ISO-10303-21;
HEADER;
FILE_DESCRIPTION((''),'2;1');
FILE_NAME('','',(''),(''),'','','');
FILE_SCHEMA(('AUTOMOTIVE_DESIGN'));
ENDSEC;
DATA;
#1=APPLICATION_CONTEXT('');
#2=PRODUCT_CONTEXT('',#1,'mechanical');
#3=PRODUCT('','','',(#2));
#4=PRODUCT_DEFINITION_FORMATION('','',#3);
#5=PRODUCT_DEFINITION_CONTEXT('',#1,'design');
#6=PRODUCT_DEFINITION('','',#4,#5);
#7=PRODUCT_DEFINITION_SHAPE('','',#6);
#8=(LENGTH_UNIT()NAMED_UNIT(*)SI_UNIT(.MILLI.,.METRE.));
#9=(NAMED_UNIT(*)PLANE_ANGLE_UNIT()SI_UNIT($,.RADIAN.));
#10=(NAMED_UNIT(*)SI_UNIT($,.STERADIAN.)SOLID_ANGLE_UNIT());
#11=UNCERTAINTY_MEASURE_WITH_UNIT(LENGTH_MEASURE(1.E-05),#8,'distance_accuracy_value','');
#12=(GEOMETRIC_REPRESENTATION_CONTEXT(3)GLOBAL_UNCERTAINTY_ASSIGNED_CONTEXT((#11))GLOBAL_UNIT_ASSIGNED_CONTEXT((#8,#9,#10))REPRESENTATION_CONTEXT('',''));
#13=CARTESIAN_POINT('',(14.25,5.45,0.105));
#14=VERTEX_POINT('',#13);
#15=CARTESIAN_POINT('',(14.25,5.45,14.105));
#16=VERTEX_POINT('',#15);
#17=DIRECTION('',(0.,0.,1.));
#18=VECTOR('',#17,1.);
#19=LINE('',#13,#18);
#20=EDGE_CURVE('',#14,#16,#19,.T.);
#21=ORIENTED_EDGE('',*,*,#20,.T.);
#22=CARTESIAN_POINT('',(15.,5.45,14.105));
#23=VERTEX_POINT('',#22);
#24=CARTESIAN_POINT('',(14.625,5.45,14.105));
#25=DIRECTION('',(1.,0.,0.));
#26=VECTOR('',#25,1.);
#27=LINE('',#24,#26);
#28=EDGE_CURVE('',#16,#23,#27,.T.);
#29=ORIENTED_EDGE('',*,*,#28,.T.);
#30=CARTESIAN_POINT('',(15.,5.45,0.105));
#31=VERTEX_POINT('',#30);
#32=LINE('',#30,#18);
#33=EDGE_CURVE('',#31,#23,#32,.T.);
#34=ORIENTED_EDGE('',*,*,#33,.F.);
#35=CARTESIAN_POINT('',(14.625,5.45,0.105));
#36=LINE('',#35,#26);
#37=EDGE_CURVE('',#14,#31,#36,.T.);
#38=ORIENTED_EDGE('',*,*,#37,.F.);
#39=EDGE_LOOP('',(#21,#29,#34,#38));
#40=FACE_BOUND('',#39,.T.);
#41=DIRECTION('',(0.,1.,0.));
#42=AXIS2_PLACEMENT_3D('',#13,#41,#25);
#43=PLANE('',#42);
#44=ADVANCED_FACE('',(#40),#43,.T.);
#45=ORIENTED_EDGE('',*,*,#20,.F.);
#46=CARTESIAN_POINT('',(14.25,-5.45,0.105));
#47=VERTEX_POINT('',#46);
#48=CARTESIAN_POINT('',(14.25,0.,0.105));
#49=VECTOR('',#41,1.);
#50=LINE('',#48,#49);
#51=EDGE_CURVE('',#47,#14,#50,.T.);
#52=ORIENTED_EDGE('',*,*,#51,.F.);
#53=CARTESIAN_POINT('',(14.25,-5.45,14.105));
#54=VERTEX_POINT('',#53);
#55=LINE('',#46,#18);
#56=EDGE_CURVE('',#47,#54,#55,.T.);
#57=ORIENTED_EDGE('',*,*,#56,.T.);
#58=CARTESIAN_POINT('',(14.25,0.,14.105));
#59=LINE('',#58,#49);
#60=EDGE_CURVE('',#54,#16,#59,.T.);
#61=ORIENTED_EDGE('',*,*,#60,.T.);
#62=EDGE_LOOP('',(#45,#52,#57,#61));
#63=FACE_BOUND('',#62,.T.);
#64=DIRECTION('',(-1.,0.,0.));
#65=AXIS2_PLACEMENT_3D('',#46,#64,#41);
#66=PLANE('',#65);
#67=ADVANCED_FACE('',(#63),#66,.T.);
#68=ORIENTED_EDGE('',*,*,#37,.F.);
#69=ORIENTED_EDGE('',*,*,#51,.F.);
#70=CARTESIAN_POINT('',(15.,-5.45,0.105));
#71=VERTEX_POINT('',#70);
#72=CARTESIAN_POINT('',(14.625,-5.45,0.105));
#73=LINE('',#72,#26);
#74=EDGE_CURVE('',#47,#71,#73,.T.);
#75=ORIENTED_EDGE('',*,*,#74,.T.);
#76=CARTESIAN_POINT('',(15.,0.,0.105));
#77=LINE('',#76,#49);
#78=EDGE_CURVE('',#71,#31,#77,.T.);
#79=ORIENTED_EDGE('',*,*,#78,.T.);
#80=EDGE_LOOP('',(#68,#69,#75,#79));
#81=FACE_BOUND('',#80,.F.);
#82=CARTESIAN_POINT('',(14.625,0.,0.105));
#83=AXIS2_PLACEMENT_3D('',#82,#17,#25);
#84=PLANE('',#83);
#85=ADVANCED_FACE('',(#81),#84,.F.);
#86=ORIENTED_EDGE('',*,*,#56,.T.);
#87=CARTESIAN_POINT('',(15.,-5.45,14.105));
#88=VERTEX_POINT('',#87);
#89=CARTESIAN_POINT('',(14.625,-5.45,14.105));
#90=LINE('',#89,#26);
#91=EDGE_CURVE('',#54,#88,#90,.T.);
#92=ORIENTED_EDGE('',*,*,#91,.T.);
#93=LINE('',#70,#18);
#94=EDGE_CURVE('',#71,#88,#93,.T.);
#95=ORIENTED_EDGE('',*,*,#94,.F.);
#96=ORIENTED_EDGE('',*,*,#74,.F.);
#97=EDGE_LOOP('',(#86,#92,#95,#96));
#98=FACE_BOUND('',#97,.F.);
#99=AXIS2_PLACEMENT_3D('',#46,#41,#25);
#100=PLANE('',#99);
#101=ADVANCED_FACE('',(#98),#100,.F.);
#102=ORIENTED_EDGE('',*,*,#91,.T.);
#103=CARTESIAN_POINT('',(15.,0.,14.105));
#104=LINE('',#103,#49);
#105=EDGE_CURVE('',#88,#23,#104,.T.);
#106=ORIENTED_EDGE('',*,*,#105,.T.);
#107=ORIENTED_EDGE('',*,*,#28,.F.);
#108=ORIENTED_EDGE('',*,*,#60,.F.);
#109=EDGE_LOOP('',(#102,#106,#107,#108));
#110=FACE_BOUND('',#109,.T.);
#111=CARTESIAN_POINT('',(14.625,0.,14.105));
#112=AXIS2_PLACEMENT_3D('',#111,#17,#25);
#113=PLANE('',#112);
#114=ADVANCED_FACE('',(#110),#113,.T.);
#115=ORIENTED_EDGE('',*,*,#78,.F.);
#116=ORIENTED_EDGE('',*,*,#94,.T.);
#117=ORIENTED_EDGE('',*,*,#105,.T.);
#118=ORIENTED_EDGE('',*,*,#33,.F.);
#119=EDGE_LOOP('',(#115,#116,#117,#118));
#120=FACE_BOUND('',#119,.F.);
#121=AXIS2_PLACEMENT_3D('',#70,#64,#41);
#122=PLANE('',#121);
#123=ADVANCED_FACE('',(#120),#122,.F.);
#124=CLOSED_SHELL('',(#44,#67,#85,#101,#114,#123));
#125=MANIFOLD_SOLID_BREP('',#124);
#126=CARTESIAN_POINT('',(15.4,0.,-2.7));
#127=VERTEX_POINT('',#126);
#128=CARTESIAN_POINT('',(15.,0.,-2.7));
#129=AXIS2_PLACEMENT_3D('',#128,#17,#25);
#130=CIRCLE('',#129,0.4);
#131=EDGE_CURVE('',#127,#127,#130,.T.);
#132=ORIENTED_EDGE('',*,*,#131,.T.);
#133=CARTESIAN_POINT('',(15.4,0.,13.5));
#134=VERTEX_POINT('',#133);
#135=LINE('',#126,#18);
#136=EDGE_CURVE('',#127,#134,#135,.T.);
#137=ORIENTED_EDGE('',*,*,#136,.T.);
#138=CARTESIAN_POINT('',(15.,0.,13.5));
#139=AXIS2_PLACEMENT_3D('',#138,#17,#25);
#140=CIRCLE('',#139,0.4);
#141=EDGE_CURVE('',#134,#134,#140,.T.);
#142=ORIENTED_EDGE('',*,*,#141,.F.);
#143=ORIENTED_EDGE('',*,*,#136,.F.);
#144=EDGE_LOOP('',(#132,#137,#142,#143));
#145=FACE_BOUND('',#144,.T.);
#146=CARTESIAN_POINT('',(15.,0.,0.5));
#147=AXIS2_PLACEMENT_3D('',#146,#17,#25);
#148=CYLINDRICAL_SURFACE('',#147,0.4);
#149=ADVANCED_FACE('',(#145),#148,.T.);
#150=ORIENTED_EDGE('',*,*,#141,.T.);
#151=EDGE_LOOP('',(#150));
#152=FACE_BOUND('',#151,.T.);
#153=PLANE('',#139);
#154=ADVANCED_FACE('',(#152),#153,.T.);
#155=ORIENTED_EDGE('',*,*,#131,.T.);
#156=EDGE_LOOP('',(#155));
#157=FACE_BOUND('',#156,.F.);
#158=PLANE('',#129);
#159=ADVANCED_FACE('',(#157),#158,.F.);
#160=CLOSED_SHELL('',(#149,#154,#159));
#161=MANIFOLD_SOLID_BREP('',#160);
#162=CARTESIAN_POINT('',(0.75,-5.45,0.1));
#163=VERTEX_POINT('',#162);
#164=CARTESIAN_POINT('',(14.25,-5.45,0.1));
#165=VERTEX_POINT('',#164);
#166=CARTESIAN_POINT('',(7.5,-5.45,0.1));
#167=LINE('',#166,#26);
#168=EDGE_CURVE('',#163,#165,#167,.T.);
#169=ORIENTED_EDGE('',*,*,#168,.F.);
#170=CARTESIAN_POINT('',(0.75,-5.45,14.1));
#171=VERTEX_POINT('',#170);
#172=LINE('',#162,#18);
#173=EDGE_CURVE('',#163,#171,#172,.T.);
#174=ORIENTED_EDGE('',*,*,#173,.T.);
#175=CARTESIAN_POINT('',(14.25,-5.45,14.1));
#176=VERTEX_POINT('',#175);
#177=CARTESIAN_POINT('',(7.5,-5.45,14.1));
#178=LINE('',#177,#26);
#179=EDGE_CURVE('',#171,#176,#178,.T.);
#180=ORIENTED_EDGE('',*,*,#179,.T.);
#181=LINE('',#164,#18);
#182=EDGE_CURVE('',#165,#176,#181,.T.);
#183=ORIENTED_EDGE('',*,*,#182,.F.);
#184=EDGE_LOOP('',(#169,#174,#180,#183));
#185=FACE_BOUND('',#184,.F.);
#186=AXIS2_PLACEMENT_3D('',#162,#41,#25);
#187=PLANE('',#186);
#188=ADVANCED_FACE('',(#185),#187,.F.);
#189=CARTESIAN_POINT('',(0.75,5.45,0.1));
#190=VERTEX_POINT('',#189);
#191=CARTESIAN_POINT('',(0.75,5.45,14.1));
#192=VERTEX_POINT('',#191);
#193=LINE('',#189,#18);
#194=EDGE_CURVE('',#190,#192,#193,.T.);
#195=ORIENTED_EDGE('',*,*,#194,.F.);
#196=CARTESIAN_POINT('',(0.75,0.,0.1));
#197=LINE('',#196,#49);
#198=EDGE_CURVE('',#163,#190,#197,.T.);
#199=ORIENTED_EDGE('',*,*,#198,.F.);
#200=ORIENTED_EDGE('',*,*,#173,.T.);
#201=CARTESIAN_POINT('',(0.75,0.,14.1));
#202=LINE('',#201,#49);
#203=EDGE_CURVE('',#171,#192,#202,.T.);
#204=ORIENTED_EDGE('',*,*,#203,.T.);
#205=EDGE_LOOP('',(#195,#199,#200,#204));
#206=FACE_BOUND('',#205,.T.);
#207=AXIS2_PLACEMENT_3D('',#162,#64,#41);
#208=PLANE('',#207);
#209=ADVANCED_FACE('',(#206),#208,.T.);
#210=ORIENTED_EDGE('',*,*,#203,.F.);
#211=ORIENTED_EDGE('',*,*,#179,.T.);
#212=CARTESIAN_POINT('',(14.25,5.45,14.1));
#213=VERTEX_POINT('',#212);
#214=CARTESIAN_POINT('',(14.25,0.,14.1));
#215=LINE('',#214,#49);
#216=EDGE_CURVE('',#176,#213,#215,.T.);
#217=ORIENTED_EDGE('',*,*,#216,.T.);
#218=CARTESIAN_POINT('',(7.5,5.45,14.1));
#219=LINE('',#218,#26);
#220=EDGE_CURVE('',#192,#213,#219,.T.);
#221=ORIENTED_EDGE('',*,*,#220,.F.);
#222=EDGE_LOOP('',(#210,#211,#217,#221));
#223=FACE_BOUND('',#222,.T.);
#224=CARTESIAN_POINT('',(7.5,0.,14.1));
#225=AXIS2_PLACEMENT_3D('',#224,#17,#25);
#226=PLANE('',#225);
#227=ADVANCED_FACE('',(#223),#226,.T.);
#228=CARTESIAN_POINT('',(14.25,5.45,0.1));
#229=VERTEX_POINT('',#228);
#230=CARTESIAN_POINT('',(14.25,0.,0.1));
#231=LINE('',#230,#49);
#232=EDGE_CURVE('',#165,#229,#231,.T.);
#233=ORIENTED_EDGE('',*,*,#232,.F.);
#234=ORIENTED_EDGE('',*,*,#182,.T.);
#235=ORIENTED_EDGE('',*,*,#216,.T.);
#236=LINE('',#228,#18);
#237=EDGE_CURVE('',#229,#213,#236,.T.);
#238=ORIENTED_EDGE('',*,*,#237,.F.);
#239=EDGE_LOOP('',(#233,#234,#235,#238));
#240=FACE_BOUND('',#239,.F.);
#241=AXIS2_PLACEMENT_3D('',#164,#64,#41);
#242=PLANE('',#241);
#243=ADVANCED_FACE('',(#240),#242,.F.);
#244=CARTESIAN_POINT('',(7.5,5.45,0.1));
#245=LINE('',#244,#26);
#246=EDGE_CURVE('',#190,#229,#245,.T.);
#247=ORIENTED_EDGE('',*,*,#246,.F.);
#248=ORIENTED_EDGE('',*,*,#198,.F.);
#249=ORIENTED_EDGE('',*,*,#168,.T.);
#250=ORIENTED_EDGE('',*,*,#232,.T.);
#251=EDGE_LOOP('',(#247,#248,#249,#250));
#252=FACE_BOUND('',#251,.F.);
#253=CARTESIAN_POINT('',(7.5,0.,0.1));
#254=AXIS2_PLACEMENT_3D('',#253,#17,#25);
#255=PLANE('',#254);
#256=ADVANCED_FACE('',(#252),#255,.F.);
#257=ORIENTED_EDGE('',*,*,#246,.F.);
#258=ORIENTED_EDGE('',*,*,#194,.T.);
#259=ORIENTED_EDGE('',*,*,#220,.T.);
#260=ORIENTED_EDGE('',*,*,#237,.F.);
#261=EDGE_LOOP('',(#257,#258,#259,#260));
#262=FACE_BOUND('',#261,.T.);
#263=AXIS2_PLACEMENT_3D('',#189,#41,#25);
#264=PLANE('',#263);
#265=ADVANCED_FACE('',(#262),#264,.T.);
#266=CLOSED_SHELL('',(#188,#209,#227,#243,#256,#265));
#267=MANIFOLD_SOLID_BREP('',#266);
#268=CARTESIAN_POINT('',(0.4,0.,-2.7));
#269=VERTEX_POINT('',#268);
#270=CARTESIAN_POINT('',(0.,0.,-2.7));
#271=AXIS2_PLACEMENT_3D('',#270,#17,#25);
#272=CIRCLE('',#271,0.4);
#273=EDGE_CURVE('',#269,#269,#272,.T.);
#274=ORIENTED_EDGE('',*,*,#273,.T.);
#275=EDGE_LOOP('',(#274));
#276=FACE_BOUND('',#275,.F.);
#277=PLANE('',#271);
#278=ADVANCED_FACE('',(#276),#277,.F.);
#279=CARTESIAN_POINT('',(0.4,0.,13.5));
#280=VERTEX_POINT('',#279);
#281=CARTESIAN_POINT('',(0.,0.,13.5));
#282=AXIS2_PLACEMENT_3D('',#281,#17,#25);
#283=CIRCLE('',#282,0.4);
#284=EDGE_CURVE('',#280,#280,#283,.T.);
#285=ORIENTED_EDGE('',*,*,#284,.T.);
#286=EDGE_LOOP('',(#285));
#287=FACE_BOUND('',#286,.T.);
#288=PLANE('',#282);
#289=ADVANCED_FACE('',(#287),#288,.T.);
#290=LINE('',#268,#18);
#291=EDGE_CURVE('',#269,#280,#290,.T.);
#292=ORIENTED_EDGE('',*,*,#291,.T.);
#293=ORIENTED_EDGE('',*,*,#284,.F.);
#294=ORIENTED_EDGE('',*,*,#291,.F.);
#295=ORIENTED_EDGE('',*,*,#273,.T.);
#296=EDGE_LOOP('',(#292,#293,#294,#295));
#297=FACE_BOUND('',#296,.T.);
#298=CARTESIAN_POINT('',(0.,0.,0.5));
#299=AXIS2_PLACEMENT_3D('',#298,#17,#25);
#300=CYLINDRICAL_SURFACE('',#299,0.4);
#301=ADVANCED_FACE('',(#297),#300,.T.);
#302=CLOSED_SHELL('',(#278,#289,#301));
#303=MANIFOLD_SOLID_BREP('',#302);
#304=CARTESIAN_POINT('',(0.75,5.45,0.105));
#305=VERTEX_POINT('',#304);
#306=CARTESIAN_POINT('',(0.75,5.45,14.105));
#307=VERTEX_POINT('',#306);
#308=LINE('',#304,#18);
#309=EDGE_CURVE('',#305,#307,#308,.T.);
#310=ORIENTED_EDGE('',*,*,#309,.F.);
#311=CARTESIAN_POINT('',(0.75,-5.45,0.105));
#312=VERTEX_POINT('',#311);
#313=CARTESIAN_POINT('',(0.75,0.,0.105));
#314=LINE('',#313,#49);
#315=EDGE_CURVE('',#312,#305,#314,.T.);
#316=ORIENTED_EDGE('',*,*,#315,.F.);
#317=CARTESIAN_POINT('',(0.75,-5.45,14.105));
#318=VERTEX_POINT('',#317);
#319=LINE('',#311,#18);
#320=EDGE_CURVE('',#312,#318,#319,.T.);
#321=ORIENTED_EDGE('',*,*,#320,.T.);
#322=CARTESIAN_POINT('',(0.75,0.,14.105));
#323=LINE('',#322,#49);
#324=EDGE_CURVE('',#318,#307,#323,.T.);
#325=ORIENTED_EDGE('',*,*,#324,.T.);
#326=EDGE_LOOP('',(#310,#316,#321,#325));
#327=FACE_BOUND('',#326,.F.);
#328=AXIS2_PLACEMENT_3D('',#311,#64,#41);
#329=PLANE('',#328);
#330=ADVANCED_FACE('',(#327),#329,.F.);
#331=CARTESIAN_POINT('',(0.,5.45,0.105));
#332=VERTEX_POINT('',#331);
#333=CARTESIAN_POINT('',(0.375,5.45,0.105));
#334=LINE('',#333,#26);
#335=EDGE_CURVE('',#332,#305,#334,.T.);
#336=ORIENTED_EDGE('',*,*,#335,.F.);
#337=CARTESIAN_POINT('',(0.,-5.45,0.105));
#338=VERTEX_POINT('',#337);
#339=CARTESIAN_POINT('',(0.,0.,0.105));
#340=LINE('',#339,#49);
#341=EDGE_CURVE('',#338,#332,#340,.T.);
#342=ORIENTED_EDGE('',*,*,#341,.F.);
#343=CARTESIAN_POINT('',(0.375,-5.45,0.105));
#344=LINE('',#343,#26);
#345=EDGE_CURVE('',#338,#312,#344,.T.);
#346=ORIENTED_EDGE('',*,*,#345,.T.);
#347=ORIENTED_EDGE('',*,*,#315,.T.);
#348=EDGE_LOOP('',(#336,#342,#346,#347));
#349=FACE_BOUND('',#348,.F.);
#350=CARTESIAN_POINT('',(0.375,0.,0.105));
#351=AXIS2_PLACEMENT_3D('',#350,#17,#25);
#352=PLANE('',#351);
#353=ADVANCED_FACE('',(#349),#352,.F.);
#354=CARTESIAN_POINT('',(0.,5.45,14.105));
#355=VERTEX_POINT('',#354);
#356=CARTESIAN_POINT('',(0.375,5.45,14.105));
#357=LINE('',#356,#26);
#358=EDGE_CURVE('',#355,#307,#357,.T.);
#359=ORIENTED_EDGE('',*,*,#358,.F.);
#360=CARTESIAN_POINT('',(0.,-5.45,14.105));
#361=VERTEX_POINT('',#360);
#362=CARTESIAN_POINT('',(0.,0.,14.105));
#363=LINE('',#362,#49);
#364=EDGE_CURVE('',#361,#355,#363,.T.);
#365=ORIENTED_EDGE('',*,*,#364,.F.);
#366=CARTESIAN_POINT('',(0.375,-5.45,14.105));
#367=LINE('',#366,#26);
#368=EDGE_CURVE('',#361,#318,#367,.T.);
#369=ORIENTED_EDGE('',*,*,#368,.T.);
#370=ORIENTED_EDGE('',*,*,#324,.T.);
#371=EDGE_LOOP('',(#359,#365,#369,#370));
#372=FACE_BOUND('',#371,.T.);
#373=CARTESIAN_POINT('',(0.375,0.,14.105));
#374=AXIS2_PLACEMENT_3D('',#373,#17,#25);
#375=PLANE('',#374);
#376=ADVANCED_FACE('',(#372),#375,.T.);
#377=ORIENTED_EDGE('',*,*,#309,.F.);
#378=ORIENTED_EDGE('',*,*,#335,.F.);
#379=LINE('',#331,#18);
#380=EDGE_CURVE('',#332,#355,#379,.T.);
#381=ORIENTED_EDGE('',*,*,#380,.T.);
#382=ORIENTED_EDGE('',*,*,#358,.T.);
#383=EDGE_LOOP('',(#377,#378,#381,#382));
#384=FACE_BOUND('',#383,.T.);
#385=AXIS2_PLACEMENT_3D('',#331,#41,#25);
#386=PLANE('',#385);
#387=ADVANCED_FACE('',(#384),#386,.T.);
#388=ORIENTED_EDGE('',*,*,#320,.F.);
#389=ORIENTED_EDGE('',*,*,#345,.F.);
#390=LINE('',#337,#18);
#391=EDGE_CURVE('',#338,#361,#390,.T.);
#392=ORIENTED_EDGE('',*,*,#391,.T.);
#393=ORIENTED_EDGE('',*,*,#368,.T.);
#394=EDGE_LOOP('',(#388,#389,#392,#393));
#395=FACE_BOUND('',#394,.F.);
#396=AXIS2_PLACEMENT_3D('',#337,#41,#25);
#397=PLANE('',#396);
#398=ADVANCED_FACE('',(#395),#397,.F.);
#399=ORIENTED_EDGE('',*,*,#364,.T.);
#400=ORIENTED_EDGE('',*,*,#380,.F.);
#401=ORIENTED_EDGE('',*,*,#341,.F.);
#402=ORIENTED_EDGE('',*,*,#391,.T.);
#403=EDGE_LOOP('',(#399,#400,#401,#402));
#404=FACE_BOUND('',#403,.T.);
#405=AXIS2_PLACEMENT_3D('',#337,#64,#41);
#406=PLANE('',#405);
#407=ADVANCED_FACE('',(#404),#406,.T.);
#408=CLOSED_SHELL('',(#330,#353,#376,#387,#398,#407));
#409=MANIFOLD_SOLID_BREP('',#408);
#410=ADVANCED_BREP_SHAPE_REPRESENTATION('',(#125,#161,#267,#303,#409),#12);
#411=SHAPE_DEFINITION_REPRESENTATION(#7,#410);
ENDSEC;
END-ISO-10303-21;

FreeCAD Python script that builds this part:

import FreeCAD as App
import Part
import Sketcher

V = App.Vector

doc = App.newDocument("Part")
body = doc.addObject("PartDesign::Body", "Body")

# Sketch on XY plane
sketch1 = body.newObject("Sketcher::SketchObject", "Sketch")
sketch1.AttachmentSupport = (doc.getObject("XY_Plane"), [""])
sketch1.MapMode = "FlatFace"
sketch1.AttachmentOffset = App.Placement(V(0, 0, 0.1), App.Rotation())
sketch1.addGeometry([
    Part.LineSegment(V(1, 5, 0), V(1, -5, 0)),
    Part.LineSegment(V(1, -5, 0), V(14, -5, 0)),
    Part.LineSegment(V(14, -5, 0), V(14, 5, 0)),
    Part.LineSegment(V(14, 5, 0), V(1, 5, 0)),
], False)
sketch1.addConstraint([
    Sketcher.Constraint("Coincident", 0, 2, 1, 1),
    Sketcher.Constraint("Coincident", 1, 2, 2, 1),
    Sketcher.Constraint("Coincident", 2, 2, 3, 1),
    Sketcher.Constraint("Coincident", 3, 2, 0, 1),
    Sketcher.Constraint("Vertical", 0),
    Sketcher.Constraint("Horizontal", 1),
    Sketcher.Constraint("Vertical", 2),
    Sketcher.Constraint("Horizontal", 3),
    Sketcher.Constraint("DistanceX", 1, 1, 1, 2, 13.5),
    Sketcher.Constraint("DistanceY", 0, 2, 0, 1, 10.9),
    Sketcher.Constraint("DistanceX", -1, 1, 0, 2, 0.75),
    Sketcher.Constraint("DistanceY", 0, 2, -1, 1, 5.45),
])
pad1 = body.newObject("PartDesign::Pad", "Pad")
pad1.Profile = sketch1
pad1.Length = 14
body2 = doc.addObject("PartDesign::Body", "Body001")
body2.AllowCompound = True

# Sketch on XY plane
sketch2 = body2.newObject("Sketcher::SketchObject", "Sketch001")
sketch2.AttachmentSupport = (doc.getObject("XY_Plane001"), [""])
sketch2.MapMode = "FlatFace"
sketch2.AttachmentOffset = App.Placement(V(0, 0, 0.5), App.Rotation())
sketch2.addGeometry([
    Part.Circle(V(0, 0, 0), V(0, 0, 1), 0.4),
    Part.Circle(V(15, 0, 0), V(0, 0, 1), 0.4),
], False)
sketch2.addConstraint([
    Sketcher.Constraint("Coincident", 0, 3, -1, 1),
    Sketcher.Constraint("Equal", 0, 1),
    Sketcher.Constraint("PointOnObject", 1, 3, -1),
    Sketcher.Constraint("Diameter", 0, 0.8),
    Sketcher.Constraint("DistanceX", -1, 1, 1, 3, 15.0),
])
pad2 = body2.newObject("PartDesign::Pad", "Pad001")
pad2.Profile = sketch2
pad2.Type = "TwoLengths"
pad2.Length = 13
pad2.Length2 = 3.2
body3 = doc.addObject("PartDesign::Body", "Body002")
body3.AllowCompound = True

# Sketch on XY plane
sketch3 = body3.newObject("Sketcher::SketchObject", "Sketch002")
sketch3.AttachmentSupport = (doc.getObject("XY_Plane002"), [""])
sketch3.MapMode = "FlatFace"
sketch3.AttachmentOffset = App.Placement(V(0, 0, 0.105), App.Rotation())
sketch3.addGeometry([
    Part.LineSegment(V(0, 5.5, 0), V(0, -5.5, 0)),  # 0
    Part.LineSegment(V(0, -5.5, 0), V(0.8, -5.5, 0)),  # 1
    Part.LineSegment(V(0.8, -5.5, 0), V(0.8, 5.5, 0)),  # 2
    Part.LineSegment(V(0.8, 5.5, 0), V(0, 5.5, 0)),  # 3
    Part.LineSegment(V(14.2, 5.5, 0), V(14.2, -5.5, 0)),  # 4
    Part.LineSegment(V(14.2, -5.5, 0), V(15, -5.5, 0)),  # 5
    Part.LineSegment(V(15, -5.5, 0), V(15, 5.5, 0)),  # 6
    Part.LineSegment(V(15, 5.5, 0), V(14.2, 5.5, 0)),  # 7
], False)
sketch3.addConstraint([
    Sketcher.Constraint("Coincident", 0, 2, 1, 1),
    Sketcher.Constraint("Coincident", 1, 2, 2, 1),
    Sketcher.Constraint("Coincident", 2, 2, 3, 1),
    Sketcher.Constraint("Coincident", 3, 2, 0, 1),
    Sketcher.Constraint("Coincident", 4, 2, 5, 1),
    Sketcher.Constraint("Coincident", 5, 2, 6, 1),
    Sketcher.Constraint("Coincident", 6, 2, 7, 1),
    Sketcher.Constraint("Coincident", 7, 2, 4, 1),
    Sketcher.Constraint("Vertical", 0),
    Sketcher.Constraint("Horizontal", 1),
    Sketcher.Constraint("Vertical", 2),
    Sketcher.Constraint("Horizontal", 3),
    Sketcher.Constraint("Vertical", 4),
    Sketcher.Constraint("Horizontal", 5),
    Sketcher.Constraint("Vertical", 6),
    Sketcher.Constraint("Horizontal", 7),
    Sketcher.Constraint("Symmetric", 0, 2, 3, 2, -1, 1),
    Sketcher.Constraint("Horizontal", 1, 2, 4, 2),
    Sketcher.Constraint("Horizontal", 3, 2, 6, 2),
    Sketcher.Constraint("Equal", 3, 5),
    Sketcher.Constraint("DistanceY", 0, 2, 0, 1, 10.9),
    Sketcher.Constraint("DistanceX", -1, 1, 5, 2, 15.0),
    Sketcher.Constraint("DistanceX", 1, 1, 1, 2, 0.75),
])
pad3 = body3.newObject("PartDesign::Pad", "Pad002")
pad3.Profile = sketch3
pad3.Length = 14

doc.recompute()
